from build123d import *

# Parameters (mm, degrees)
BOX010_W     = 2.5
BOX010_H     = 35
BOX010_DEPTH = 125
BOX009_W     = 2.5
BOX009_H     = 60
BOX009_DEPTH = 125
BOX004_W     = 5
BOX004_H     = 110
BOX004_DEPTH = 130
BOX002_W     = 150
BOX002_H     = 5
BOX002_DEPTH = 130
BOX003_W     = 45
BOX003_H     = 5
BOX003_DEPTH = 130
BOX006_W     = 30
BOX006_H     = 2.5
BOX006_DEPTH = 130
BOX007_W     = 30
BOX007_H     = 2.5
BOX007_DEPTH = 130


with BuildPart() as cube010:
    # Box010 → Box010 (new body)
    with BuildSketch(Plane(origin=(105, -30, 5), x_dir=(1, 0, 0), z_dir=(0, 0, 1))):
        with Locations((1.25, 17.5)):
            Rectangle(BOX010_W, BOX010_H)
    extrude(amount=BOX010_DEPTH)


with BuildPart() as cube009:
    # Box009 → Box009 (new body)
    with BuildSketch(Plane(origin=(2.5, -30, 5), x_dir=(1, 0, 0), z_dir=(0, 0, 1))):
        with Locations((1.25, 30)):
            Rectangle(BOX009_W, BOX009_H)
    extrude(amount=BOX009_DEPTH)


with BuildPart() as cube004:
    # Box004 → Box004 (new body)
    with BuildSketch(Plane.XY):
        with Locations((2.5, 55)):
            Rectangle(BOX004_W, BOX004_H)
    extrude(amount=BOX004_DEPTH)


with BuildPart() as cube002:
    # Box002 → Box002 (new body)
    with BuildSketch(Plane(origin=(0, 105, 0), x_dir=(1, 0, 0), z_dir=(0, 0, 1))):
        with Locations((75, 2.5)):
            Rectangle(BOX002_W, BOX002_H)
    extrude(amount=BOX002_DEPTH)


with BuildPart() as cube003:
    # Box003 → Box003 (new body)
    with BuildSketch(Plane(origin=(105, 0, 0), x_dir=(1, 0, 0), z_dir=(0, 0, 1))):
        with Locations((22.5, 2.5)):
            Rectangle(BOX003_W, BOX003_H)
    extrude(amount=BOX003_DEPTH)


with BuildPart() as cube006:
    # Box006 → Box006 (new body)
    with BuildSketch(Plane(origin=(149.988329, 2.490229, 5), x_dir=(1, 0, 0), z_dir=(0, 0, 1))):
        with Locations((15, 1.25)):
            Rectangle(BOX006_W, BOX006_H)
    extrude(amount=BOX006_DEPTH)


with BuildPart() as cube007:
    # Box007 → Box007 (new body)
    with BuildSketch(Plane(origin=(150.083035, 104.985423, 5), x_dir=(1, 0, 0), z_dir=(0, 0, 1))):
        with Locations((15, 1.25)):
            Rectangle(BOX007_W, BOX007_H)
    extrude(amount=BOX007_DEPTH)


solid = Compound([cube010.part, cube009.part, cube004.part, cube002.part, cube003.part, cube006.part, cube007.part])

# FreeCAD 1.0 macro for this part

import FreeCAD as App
import Part
import Sketcher


def add_polygon(sketch, points):
    """Adds a closed chain of lines whose ends are joined by coincident constraints."""
    first, n = sketch.GeometryCount, len(points)
    for a, b in zip(points, points[1:] + points[:1]):
        sketch.addGeometry(Part.LineSegment(App.Vector(*a, 0), App.Vector(*b, 0)), False)
    for i in range(n):
        sketch.addConstraint(Sketcher.Constraint("Coincident", first + i, 2, first + (i + 1) % n, 1))

doc = App.newDocument("Part")
params = doc.addObject("Spreadsheet::Sheet", "Params")
for row, (alias, value) in enumerate([
    ("sketch1_height", "35 mm"),
    ("sketch1_width", "2.5 mm"),
    ("pad1_length", "125 mm"),
    ("sketch2_height", "60 mm"),
    ("sketch2_width", "2.5 mm"),
    ("pad2_length", "125 mm"),
    ("sketch3_width", "5 mm"),
    ("sketch3_height", "110 mm"),
    ("pad3_length", "130 mm"),
    ("sketch4_width", "150 mm"),
    ("sketch4_height", "5 mm"),
    ("pad4_length", "130 mm"),
    ("sketch5_width", "45 mm"),
    ("sketch5_height", "5 mm"),
    ("pad5_length", "130 mm"),
    ("sketch6_width", "30 mm"),
    ("sketch6_height", "2.5 mm"),
    ("pad6_length", "130 mm"),
    ("sketch7_width", "30 mm"),
    ("sketch7_height", "2.5 mm"),
    ("pad7_length", "130 mm"),
], start=1):
    params.set(f"A{row}", alias)
    params.set(f"B{row}", "=" + value)
    params.setAlias(f"B{row}", alias)

body = doc.addObject("PartDesign::Body", "Body")

# Sketch on XY plane
sketch1 = body.newObject("Sketcher::SketchObject", "Sketch")
sketch1.AttachmentSupport = (doc.getObject("XY_Plane"), [""])
sketch1.MapMode = "FlatFace"
sketch1.AttachmentOffset = App.Placement(App.Vector(0, 0, 5), App.Rotation())
add_polygon(sketch1, [(105, 5), (105, -30), (107.5, -30), (107.5, 5)])  # lines 0-3
sketch1.addConstraint(Sketcher.Constraint("Vertical", 0))
sketch1.addConstraint(Sketcher.Constraint("Horizontal", 1))
sketch1.addConstraint(Sketcher.Constraint("Vertical", 2))
sketch1.addConstraint(Sketcher.Constraint("Horizontal", 3))
sketch1.addConstraint(Sketcher.Constraint("DistanceY", 0, 2, 0, 1, 35.0))
sketch1.addConstraint(Sketcher.Constraint("DistanceX", 1, 1, 1, 2, 2.5))
sketch1.addConstraint(Sketcher.Constraint("DistanceX", -1, 1, 0, 2, 105.0))
sketch1.addConstraint(Sketcher.Constraint("DistanceY", 0, 2, -1, 1, 30.0))
sketch1.setExpression("Constraints[8]", "Params.sketch1_height")
sketch1.setExpression("Constraints[9]", "Params.sketch1_width")
pad1 = body.newObject("PartDesign::Pad", "Pad")
pad1.Profile = sketch1
pad1.setExpression("Length", "Params.pad1_length")
body2 = doc.addObject("PartDesign::Body", "Body001")

# Sketch on XY plane
sketch2 = body2.newObject("Sketcher::SketchObject", "Sketch001")
sketch2.AttachmentSupport = (doc.getObject("XY_Plane001"), [""])
sketch2.MapMode = "FlatFace"
sketch2.AttachmentOffset = App.Placement(App.Vector(0, 0, 5), App.Rotation())
add_polygon(sketch2, [(2.5, 30), (2.5, -30), (5, -30), (5, 30)])  # lines 0-3
sketch2.addConstraint(Sketcher.Constraint("Vertical", 0))
sketch2.addConstraint(Sketcher.Constraint("Horizontal", 1))
sketch2.addConstraint(Sketcher.Constraint("Vertical", 2))
sketch2.addConstraint(Sketcher.Constraint("Horizontal", 3))
sketch2.addConstraint(Sketcher.Constraint("DistanceY", 0, 2, 0, 1, 60.0))
sketch2.addConstraint(Sketcher.Constraint("DistanceX", 1, 1, 1, 2, 2.5))
sketch2.addConstraint(Sketcher.Constraint("DistanceY", 0, 2, -1, 1, 30.0))
sketch2.addConstraint(Sketcher.Constraint("DistanceX", -1, 1, 1, 2, 5.0))
sketch2.setExpression("Constraints[8]", "Params.sketch2_height")
sketch2.setExpression("Constraints[9]", "Params.sketch2_width")
pad2 = body2.newObject("PartDesign::Pad", "Pad001")
pad2.Profile = sketch2
pad2.setExpression("Length", "Params.pad2_length")
body3 = doc.addObject("PartDesign::Body", "Body002")

# Sketch on XY plane
sketch3 = body3.newObject("Sketcher::SketchObject", "Sketch002")
sketch3.AttachmentSupport = (doc.getObject("XY_Plane002"), [""])
sketch3.MapMode = "FlatFace"
add_polygon(sketch3, [(0, 110), (0, 0), (5, 0), (5, 110)])  # lines 0-3
sketch3.addConstraint(Sketcher.Constraint("Vertical", 0))
sketch3.addConstraint(Sketcher.Constraint("Horizontal", 1))
sketch3.addConstraint(Sketcher.Constraint("Vertical", 2))
sketch3.addConstraint(Sketcher.Constraint("Horizontal", 3))
sketch3.addConstraint(Sketcher.Constraint("Coincident", 0, 2, -1, 1))
sketch3.addConstraint(Sketcher.Constraint("DistanceX", 1, 1, 1, 2, 5.0))
sketch3.addConstraint(Sketcher.Constraint("DistanceY", 0, 2, 0, 1, 110.0))
sketch3.setExpression("Constraints[9]", "Params.sketch3_width")
sketch3.setExpression("Constraints[10]", "Params.sketch3_height")
pad3 = body3.newObject("PartDesign::Pad", "Pad002")
pad3.Profile = sketch3
pad3.setExpression("Length", "Params.pad3_length")
body4 = doc.addObject("PartDesign::Body", "Body003")

# Sketch on XY plane
sketch4 = body4.newObject("Sketcher::SketchObject", "Sketch003")
sketch4.AttachmentSupport = (doc.getObject("XY_Plane003"), [""])
sketch4.MapMode = "FlatFace"
add_polygon(sketch4, [(0, 110), (0, 105), (150, 105), (150, 110)])  # lines 0-3
sketch4.addConstraint(Sketcher.Constraint("Vertical", 0))
sketch4.addConstraint(Sketcher.Constraint("Horizontal", 1))
sketch4.addConstraint(Sketcher.Constraint("Vertical", 2))
sketch4.addConstraint(Sketcher.Constraint("Horizontal", 3))
sketch4.addConstraint(Sketcher.Constraint("PointOnObject", 0, 2, -2))
sketch4.addConstraint(Sketcher.Constraint("DistanceX", 1, 1, 1, 2, 150.0))
sketch4.addConstraint(Sketcher.Constraint("DistanceY", 0, 2, 0, 1, 5.0))
sketch4.addConstraint(Sketcher.Constraint("DistanceY", -1, 1, 0, 2, 105.0))
sketch4.setExpression("Constraints[9]", "Params.sketch4_width")
sketch4.setExpression("Constraints[10]", "Params.sketch4_height")
pad4 = body4.newObject("PartDesign::Pad", "Pad003")
pad4.Profile = sketch4
pad4.setExpression("Length", "Params.pad4_length")
body5 = doc.addObject("PartDesign::Body", "Body004")

# Sketch on XY plane
sketch5 = body5.newObject("Sketcher::SketchObject", "Sketch004")
sketch5.AttachmentSupport = (doc.getObject("XY_Plane004"), [""])
sketch5.MapMode = "FlatFace"
add_polygon(sketch5, [(105, 5), (105, 0), (150, 0), (150, 5)])  # lines 0-3
sketch5.addConstraint(Sketcher.Constraint("Vertical", 0))
sketch5.addConstraint(Sketcher.Constraint("Horizontal", 1))
sketch5.addConstraint(Sketcher.Constraint("Vertical", 2))
sketch5.addConstraint(Sketcher.Constraint("Horizontal", 3))
sketch5.addConstraint(Sketcher.Constraint("PointOnObject", 0, 2, -1))
sketch5.addConstraint(Sketcher.Constraint("DistanceX", 1, 1, 1, 2, 45.0))
sketch5.addConstraint(Sketcher.Constraint("DistanceY", 0, 2, 0, 1, 5.0))
sketch5.addConstraint(Sketcher.Constraint("DistanceX", -1, 1, 0, 2, 105.0))
sketch5.setExpression("Constraints[9]", "Params.sketch5_width")
sketch5.setExpression("Constraints[10]", "Params.sketch5_height")
pad5 = body5.newObject("PartDesign::Pad", "Pad004")
pad5.Profile = sketch5
pad5.setExpression("Length", "Params.pad5_length")
body6 = doc.addObject("PartDesign::Body", "Body005")

# Sketch on XY plane
sketch6 = body6.newObject("Sketcher::SketchObject", "Sketch005")
sketch6.AttachmentSupport = (doc.getObject("XY_Plane005"), [""])
sketch6.MapMode = "FlatFace"
sketch6.AttachmentOffset = App.Placement(App.Vector(0, 0, 5), App.Rotation())
add_polygon(sketch6, [(149.988329, 4.990229), (149.988329, 2.490229), (179.988329, 2.490229), (179.988329, 4.990229)])  # lines 0-3
sketch6.addConstraint(Sketcher.Constraint("Vertical", 0))
sketch6.addConstraint(Sketcher.Constraint("Horizontal", 1))
sketch6.addConstraint(Sketcher.Constraint("Vertical", 2))
sketch6.addConstraint(Sketcher.Constraint("Horizontal", 3))
sketch6.addConstraint(Sketcher.Constraint("DistanceX", 1, 1, 1, 2, 30.0))
sketch6.addConstraint(Sketcher.Constraint("DistanceY", 0, 2, 0, 1, 2.5))
sketch6.addConstraint(Sketcher.Constraint("DistanceX", -1, 1, 0, 2, 149.988329))
sketch6.addConstraint(Sketcher.Constraint("DistanceY", -1, 1, 0, 2, 2.490229))
sketch6.setExpression("Constraints[8]", "Params.sketch6_width")
sketch6.setExpression("Constraints[9]", "Params.sketch6_height")
pad6 = body6.newObject("PartDesign::Pad", "Pad005")
pad6.Profile = sketch6
pad6.setExpression("Length", "Params.pad6_length")
body7 = doc.addObject("PartDesign::Body", "Body006")

# Sketch on XY plane
sketch7 = body7.newObject("Sketcher::SketchObject", "Sketch006")
sketch7.AttachmentSupport = (doc.getObject("XY_Plane006"), [""])
sketch7.MapMode = "FlatFace"
sketch7.AttachmentOffset = App.Placement(App.Vector(0, 0, 5), App.Rotation())
add_polygon(sketch7, [(150.083035, 107.485423), (150.083035, 104.985423), (180.083035, 104.985423), (180.083035, 107.485423)])  # lines 0-3
sketch7.addConstraint(Sketcher.Constraint("Vertical", 0))
sketch7.addConstraint(Sketcher.Constraint("Horizontal", 1))
sketch7.addConstraint(Sketcher.Constraint("Vertical", 2))
sketch7.addConstraint(Sketcher.Constraint("Horizontal", 3))
sketch7.addConstraint(Sketcher.Constraint("DistanceX", 1, 1, 1, 2, 30.0))
sketch7.addConstraint(Sketcher.Constraint("DistanceY", 0, 2, 0, 1, 2.5))
sketch7.addConstraint(Sketcher.Constraint("DistanceX", -1, 1, 0, 2, 150.083035))
sketch7.addConstraint(Sketcher.Constraint("DistanceY", -1, 1, 0, 2, 104.985423))
sketch7.setExpression("Constraints[8]", "Params.sketch7_width")
sketch7.setExpression("Constraints[9]", "Params.sketch7_height")
pad7 = body7.newObject("PartDesign::Pad", "Pad006")
pad7.Profile = sketch7
pad7.setExpression("Length", "Params.pad7_length")

doc.recompute()
